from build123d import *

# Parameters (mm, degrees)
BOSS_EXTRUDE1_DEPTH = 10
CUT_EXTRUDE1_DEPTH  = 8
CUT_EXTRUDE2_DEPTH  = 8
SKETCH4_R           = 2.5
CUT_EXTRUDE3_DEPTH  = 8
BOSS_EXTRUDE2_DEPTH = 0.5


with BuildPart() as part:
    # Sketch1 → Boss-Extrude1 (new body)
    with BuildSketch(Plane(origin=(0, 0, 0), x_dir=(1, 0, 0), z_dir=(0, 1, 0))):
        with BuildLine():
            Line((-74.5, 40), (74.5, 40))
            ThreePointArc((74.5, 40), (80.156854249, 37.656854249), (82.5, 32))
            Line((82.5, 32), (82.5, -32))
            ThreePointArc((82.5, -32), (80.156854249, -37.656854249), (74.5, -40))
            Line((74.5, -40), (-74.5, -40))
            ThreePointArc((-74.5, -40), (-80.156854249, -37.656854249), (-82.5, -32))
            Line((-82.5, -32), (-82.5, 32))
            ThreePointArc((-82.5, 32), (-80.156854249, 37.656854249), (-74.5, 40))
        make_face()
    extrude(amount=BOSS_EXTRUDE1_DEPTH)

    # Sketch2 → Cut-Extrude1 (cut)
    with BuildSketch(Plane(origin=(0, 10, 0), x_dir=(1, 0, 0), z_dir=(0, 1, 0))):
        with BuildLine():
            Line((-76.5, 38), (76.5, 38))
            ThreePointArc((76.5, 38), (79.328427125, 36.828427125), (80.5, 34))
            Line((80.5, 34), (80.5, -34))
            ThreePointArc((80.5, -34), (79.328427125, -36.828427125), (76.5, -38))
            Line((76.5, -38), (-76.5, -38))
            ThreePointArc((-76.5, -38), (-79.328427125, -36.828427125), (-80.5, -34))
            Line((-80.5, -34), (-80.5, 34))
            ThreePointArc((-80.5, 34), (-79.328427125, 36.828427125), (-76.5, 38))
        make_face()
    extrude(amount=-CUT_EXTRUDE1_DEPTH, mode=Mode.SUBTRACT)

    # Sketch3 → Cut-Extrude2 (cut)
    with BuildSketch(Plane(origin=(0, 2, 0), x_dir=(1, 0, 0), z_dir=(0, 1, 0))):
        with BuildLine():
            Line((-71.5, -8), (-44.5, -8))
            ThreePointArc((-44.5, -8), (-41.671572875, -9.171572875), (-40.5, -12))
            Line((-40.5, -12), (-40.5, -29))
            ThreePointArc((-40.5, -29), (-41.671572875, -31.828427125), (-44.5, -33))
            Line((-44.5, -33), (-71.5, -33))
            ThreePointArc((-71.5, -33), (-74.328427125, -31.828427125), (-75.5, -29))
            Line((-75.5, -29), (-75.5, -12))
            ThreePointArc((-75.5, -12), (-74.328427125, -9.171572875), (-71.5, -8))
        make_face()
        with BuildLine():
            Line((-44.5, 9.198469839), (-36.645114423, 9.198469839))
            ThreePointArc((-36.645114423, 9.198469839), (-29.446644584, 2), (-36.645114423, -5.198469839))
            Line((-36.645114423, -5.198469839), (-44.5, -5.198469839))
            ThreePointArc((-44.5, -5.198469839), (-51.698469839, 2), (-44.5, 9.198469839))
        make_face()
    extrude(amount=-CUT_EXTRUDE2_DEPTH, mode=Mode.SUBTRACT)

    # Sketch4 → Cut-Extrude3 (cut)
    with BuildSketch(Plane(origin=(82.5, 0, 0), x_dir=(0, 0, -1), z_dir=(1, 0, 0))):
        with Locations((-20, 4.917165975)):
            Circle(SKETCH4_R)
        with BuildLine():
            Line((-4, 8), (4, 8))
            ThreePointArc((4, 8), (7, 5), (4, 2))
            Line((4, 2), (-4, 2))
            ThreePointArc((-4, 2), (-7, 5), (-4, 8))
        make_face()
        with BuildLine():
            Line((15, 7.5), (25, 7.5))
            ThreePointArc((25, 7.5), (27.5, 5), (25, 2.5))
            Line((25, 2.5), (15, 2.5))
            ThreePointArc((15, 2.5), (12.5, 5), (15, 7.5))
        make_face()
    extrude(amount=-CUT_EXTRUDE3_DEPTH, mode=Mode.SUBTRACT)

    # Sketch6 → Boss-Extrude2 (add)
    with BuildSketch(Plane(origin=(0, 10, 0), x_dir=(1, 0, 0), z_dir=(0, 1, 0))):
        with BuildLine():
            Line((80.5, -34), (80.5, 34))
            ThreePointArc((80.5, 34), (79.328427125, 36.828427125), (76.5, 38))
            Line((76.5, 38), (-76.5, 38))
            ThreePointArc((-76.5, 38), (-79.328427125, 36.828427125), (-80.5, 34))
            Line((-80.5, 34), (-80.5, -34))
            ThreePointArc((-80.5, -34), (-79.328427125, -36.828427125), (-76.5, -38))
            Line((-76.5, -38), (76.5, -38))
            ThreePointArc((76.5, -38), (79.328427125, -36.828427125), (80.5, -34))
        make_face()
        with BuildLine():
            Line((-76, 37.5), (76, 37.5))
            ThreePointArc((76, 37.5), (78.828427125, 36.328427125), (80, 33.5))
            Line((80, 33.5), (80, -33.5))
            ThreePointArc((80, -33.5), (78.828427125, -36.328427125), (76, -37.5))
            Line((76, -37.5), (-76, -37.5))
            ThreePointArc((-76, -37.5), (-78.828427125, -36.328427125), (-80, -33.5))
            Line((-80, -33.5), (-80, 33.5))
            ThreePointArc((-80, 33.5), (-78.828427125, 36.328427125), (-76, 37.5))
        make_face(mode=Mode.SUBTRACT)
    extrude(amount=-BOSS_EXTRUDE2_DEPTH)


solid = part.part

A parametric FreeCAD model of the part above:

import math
import FreeCAD as App
import Part
import Sketcher
from FreeCAD import Vector

doc = App.newDocument("Part")
body = doc.addObject("PartDesign::Body", "Body")

# Sketch on XZ plane
sketch1 = body.newObject("Sketcher::SketchObject", "Sketch")
sketch1.AttachmentSupport = (doc.getObject("XZ_Plane"), [""])
sketch1.MapMode = "FlatFace"
sketch1.addGeometry(Part.LineSegment(Vector(74.5, -40, 0), Vector(-74.5, -40, 0)), False)
sketch1.addGeometry(Part.ArcOfCircle(Part.Circle(Vector(-74.5, -32, 0), Vector(0, 0, 1), 8), math.radians(-180), math.radians(-90)), False)
sketch1.addGeometry(Part.LineSegment(Vector(-82.5, -32, 0), Vector(-82.5, 32, 0)), False)
sketch1.addGeometry(Part.ArcOfCircle(Part.Circle(Vector(-74.5, 32, 0), Vector(0, 0, 1), 8), math.radians(90), math.radians(180)), False)
sketch1.addGeometry(Part.LineSegment(Vector(-74.5, 40, 0), Vector(74.5, 40, 0)), False)
sketch1.addGeometry(Part.ArcOfCircle(Part.Circle(Vector(74.5, 32, 0), Vector(0, 0, 1), 8), math.radians(0), math.radians(90)), False)
sketch1.addGeometry(Part.LineSegment(Vector(82.5, 32, 0), Vector(82.5, -32, 0)), False)
sketch1.addGeometry(Part.ArcOfCircle(Part.Circle(Vector(74.5, -32, 0), Vector(0, 0, 1), 8), math.radians(-90), math.radians(0)), False)
sketch1.addConstraint(Sketcher.Constraint("Tangent", 0, 2, 1, 2))
sketch1.addConstraint(Sketcher.Constraint("Tangent", 1, 1, 2, 1))
sketch1.addConstraint(Sketcher.Constraint("Tangent", 2, 2, 3, 2))
sketch1.addConstraint(Sketcher.Constraint("Tangent", 3, 1, 4, 1))
sketch1.addConstraint(Sketcher.Constraint("Tangent", 4, 2, 5, 2))
sketch1.addConstraint(Sketcher.Constraint("Tangent", 5, 1, 6, 1))
sketch1.addConstraint(Sketcher.Constraint("Tangent", 6, 2, 7, 2))
sketch1.addConstraint(Sketcher.Constraint("Tangent", 7, 1, 0, 1))
sketch1.addConstraint(Sketcher.Constraint("Horizontal", 0))
sketch1.addConstraint(Sketcher.Constraint("Vertical", 2))
sketch1.addConstraint(Sketcher.Constraint("Horizontal", 4))
sketch1.addConstraint(Sketcher.Constraint("Vertical", 6))
sketch1.addConstraint(Sketcher.Constraint("Equal", 1, 3))
sketch1.addConstraint(Sketcher.Constraint("Equal", 3, 5))
sketch1.addConstraint(Sketcher.Constraint("Equal", 5, 7))
sketch1.addConstraint(Sketcher.Constraint("Symmetric", 1, 3, 5, 3, -1, 1))
sketch1.addConstraint(Sketcher.Constraint("Radius", 1, 8.0))
sketch1.addConstraint(Sketcher.Constraint("DistanceX", 0, 2, 0, 1, 149.0))
sketch1.addConstraint(Sketcher.Constraint("DistanceY", 2, 1, 2, 2, 64.0))
pad1 = body.newObject("PartDesign::Pad", "Pad")
pad1.Profile = sketch1
pad1.Length = 10
pad1.Reversed = True

# Sketch on XZ plane
sketch2 = body.newObject("Sketcher::SketchObject", "Sketch001")
sketch2.AttachmentSupport = (doc.getObject("XZ_Plane"), [""])
sketch2.MapMode = "FlatFace"
sketch2.AttachmentOffset = App.Placement(Vector(0, 0, -10), App.Rotation())
sketch2.addGeometry(Part.LineSegment(Vector(76.5, -38, 0), Vector(-76.5, -38, 0)), False)
sketch2.addGeometry(Part.ArcOfCircle(Part.Circle(Vector(-76.5, -34, 0), Vector(0, 0, 1), 4), math.radians(180), math.radians(270)), False)
sketch2.addGeometry(Part.LineSegment(Vector(-80.5, -34, 0), Vector(-80.5, 34, 0)), False)
sketch2.addGeometry(Part.ArcOfCircle(Part.Circle(Vector(-76.5, 34, 0), Vector(0, 0, 1), 4), math.radians(90), math.radians(180)), False)
sketch2.addGeometry(Part.LineSegment(Vector(-76.5, 38, 0), Vector(76.5, 38, 0)), False)
sketch2.addGeometry(Part.ArcOfCircle(Part.Circle(Vector(76.5, 34, 0), Vector(0, 0, 1), 4), math.radians(0), math.radians(90)), False)
sketch2.addGeometry(Part.LineSegment(Vector(80.5, 34, 0), Vector(80.5, -34, 0)), False)
sketch2.addGeometry(Part.ArcOfCircle(Part.Circle(Vector(76.5, -34, 0), Vector(0, 0, 1), 4), math.radians(-90), math.radians(0)), False)
sketch2.addConstraint(Sketcher.Constraint("Tangent", 0, 2, 1, 2))
sketch2.addConstraint(Sketcher.Constraint("Tangent", 1, 1, 2, 1))
sketch2.addConstraint(Sketcher.Constraint("Tangent", 2, 2, 3, 2))
sketch2.addConstraint(Sketcher.Constraint("Tangent", 3, 1, 4, 1))
sketch2.addConstraint(Sketcher.Constraint("Tangent", 4, 2, 5, 2))
sketch2.addConstraint(Sketcher.Constraint("Tangent", 5, 1, 6, 1))
sketch2.addConstraint(Sketcher.Constraint("Tangent", 6, 2, 7, 2))
sketch2.addConstraint(Sketcher.Constraint("Tangent", 7, 1, 0, 1))
sketch2.addConstraint(Sketcher.Constraint("Horizontal", 0))
sketch2.addConstraint(Sketcher.Constraint("Vertical", 2))
sketch2.addConstraint(Sketcher.Constraint("Horizontal", 4))
sketch2.addConstraint(Sketcher.Constraint("Vertical", 6))
sketch2.addConstraint(Sketcher.Constraint("Equal", 1, 3))
sketch2.addConstraint(Sketcher.Constraint("Equal", 3, 5))
sketch2.addConstraint(Sketcher.Constraint("Equal", 5, 7))
sketch2.addConstraint(Sketcher.Constraint("Symmetric", 1, 3, 5, 3, -1, 1))
sketch2.addConstraint(Sketcher.Constraint("Radius", 1, 4.0))
sketch2.addConstraint(Sketcher.Constraint("DistanceX", 0, 2, 0, 1, 153.0))
sketch2.addConstraint(Sketcher.Constraint("DistanceY", 2, 1, 2, 2, 68.0))
pocket1 = body.newObject("PartDesign::Pocket", "Pocket")
pocket1.Profile = sketch2
pocket1.Length = 8
pocket1.Reversed = True

# Sketch on XZ plane
sketch3 = body.newObject("Sketcher::SketchObject", "Sketch002")
sketch3.AttachmentSupport = (doc.getObject("XZ_Plane"), [""])
sketch3.MapMode = "FlatFace"
sketch3.AttachmentOffset = App.Placement(Vector(0, 0, -2), App.Rotation())
sketch3.addGeometry(Part.LineSegment(Vector(-44.5, 8, 0), Vector(-71.5, 8, 0)), False)
sketch3.addGeometry(Part.ArcOfCircle(Part.Circle(Vector(-71.5, 12, 0), Vector(0, 0, 1), 4), math.radians(180), math.radians(270)), False)
sketch3.addGeometry(Part.LineSegment(Vector(-75.5, 12, 0), Vector(-75.5, 29, 0)), False)
sketch3.addGeometry(Part.ArcOfCircle(Part.Circle(Vector(-71.5, 29, 0), Vector(0, 0, 1), 4), math.radians(90), math.radians(180)), False)
sketch3.addGeometry(Part.LineSegment(Vector(-71.5, 33, 0), Vector(-44.5, 33, 0)), False)
sketch3.addGeometry(Part.ArcOfCircle(Part.Circle(Vector(-44.5, 29, 0), Vector(0, 0, 1), 4), math.radians(0), math.radians(90)), False)
sketch3.addGeometry(Part.LineSegment(Vector(-40.5, 29, 0), Vector(-40.5, 12, 0)), False)
sketch3.addGeometry(Part.ArcOfCircle(Part.Circle(Vector(-44.5, 12, 0), Vector(0, 0, 1), 4), math.radians(-90), math.radians(0)), False)
sketch3.addGeometry(Part.LineSegment(Vector(-36.645114, -9.19847, 0), Vector(-44.5, -9.19847, 0)), False)
sketch3.addGeometry(Part.ArcOfCircle(Part.Circle(Vector(-44.5, -2, 0), Vector(0, 0, 1), 7.19847), math.radians(90), math.radians(270)), False)
sketch3.addGeometry(Part.LineSegment(Vector(-44.5, 5.19847, 0), Vector(-36.645114, 5.19847, 0)), False)
sketch3.addGeometry(Part.ArcOfCircle(Part.Circle(Vector(-36.645114, -2, 0), Vector(0, 0, 1), 7.19847), math.radians(-90), math.radians(90)), False)
sketch3.addConstraint(Sketcher.Constraint("Tangent", 0, 2, 1, 2))
sketch3.addConstraint(Sketcher.Constraint("Tangent", 1, 1, 2, 1))
sketch3.addConstraint(Sketcher.Constraint("Tangent", 2, 2, 3, 2))
sketch3.addConstraint(Sketcher.Constraint("Tangent", 3, 1, 4, 1))
sketch3.addConstraint(Sketcher.Constraint("Tangent", 4, 2, 5, 2))
sketch3.addConstraint(Sketcher.Constraint("Tangent", 5, 1, 6, 1))
sketch3.addConstraint(Sketcher.Constraint("Tangent", 6, 2, 7, 2))
sketch3.addConstraint(Sketcher.Constraint("Tangent", 7, 1, 0, 1))
sketch3.addConstraint(Sketcher.Constraint("Tangent", 8, 2, 9, 2))
sketch3.addConstraint(Sketcher.Constraint("Tangent", 9, 1, 10, 1))
sketch3.addConstraint(Sketcher.Constraint("Tangent", 10, 2, 11, 2))
sketch3.addConstraint(Sketcher.Constraint("Tangent", 11, 1, 8, 1))
sketch3.addConstraint(Sketcher.Constraint("Horizontal", 0))
sketch3.addConstraint(Sketcher.Constraint("Vertical", 2))
sketch3.addConstraint(Sketcher.Constraint("Horizontal", 4))
sketch3.addConstraint(Sketcher.Constraint("Vertical", 6))
sketch3.addConstraint(Sketcher.Constraint("Horizontal", 8))
sketch3.addConstraint(Sketcher.Constraint("Horizontal", 10))
sketch3.addConstraint(Sketcher.Constraint("Equal", 1, 3))
sketch3.addConstraint(Sketcher.Constraint("Equal", 3, 5))
sketch3.addConstraint(Sketcher.Constraint("Equal", 5, 7))
sketch3.addConstraint(Sketcher.Constraint("Vertical", 7, 3, 9, 3))
sketch3.addConstraint(Sketcher.Constraint("Radius", 1, 4.0))
sketch3.addConstraint(Sketcher.Constraint("DistanceX", 0, 2, 0, 1, 27.0))
sketch3.addConstraint(Sketcher.Constraint("DistanceY", 2, 1, 2, 2, 17.0))
sketch3.addConstraint(Sketcher.Constraint("DistanceY", -1, 1, 1, 3, 12.0))
sketch3.addConstraint(Sketcher.Constraint("DistanceY", 9, 3, -1, 1, 2.0))
sketch3.addConstraint(Sketcher.Constraint("DistanceX", 1, 3, -1, 1, 71.5))
sketch3.addConstraint(Sketcher.Constraint("Radius", 9, 7.19847))
sketch3.addConstraint(Sketcher.Constraint("DistanceX", 8, 2, 8, 1, 7.854886))
pocket2 = body.newObject("PartDesign::Pocket", "Pocket001")
pocket2.Profile = sketch3
pocket2.Length = 8
pocket2.Reversed = True

# Sketch on YZ plane
sketch4 = body.newObject("Sketcher::SketchObject", "Sketch003")
sketch4.AttachmentSupport = (doc.getObject("YZ_Plane"), [""])
sketch4.MapMode = "FlatFace"
sketch4.AttachmentOffset = App.Placement(Vector(0, 0, 82.5), App.Rotation())
sketch4.addGeometry(Part.Circle(Vector(4.917166, 20, 0), Vector(0, 0, 1), 2.5), False)
sketch4.addGeometry(Part.LineSegment(Vector(8, -4, 0), Vector(8, 4, 0)), False)
sketch4.addGeometry(Part.ArcOfCircle(Part.Circle(Vector(5, 4, 0), Vector(0, 0, 1), 3), math.radians(0), math.radians(180)), False)
sketch4.addGeometry(Part.LineSegment(Vector(2, 4, 0), Vector(2, -4, 0)), False)
sketch4.addGeometry(Part.ArcOfCircle(Part.Circle(Vector(5, -4, 0), Vector(0, 0, 1), 3), math.radians(180), math.radians(360)), False)
sketch4.addGeometry(Part.LineSegment(Vector(7.5, -25, 0), Vector(7.5, -15, 0)), False)
sketch4.addGeometry(Part.ArcOfCircle(Part.Circle(Vector(5, -15, 0), Vector(0, 0, 1), 2.5), math.radians(0), math.radians(180)), False)
sketch4.addGeometry(Part.LineSegment(Vector(2.5, -15, 0), Vector(2.5, -25, 0)), False)
sketch4.addGeometry(Part.ArcOfCircle(Part.Circle(Vector(5, -25, 0), Vector(0, 0, 1), 2.5), math.radians(180), math.radians(360)), False)
sketch4.addConstraint(Sketcher.Constraint("Tangent", 1, 2, 2, 1))
sketch4.addConstraint(Sketcher.Constraint("Tangent", 2, 2, 3, 1))
sketch4.addConstraint(Sketcher.Constraint("Tangent", 3, 2, 4, 1))
sketch4.addConstraint(Sketcher.Constraint("Tangent", 4, 2, 1, 1))
sketch4.addConstraint(Sketcher.Constraint("Tangent", 5, 2, 6, 1))
sketch4.addConstraint(Sketcher.Constraint("Tangent", 6, 2, 7, 1))
sketch4.addConstraint(Sketcher.Constraint("Tangent", 7, 2, 8, 1))
sketch4.addConstraint(Sketcher.Constraint("Tangent", 8, 2, 5, 1))
sketch4.addConstraint(Sketcher.Constraint("Vertical", 1))
sketch4.addConstraint(Sketcher.Constraint("Vertical", 3))
sketch4.addConstraint(Sketcher.Constraint("Vertical", 5))
sketch4.addConstraint(Sketcher.Constraint("Vertical", 7))
sketch4.addConstraint(Sketcher.Constraint("Equal", 0, 6))
sketch4.addConstraint(Sketcher.Constraint("Vertical", 4, 3, 6, 3))
sketch4.addConstraint(Sketcher.Constraint("Diameter", 0, 5.0))
sketch4.addConstraint(Sketcher.Constraint("Radius", 2, 3.0))
sketch4.addConstraint(Sketcher.Constraint("DistanceY", 1, 1, 1, 2, 8.0))
sketch4.addConstraint(Sketcher.Constraint("DistanceY", 5, 1, 5, 2, 10.0))
sketch4.addConstraint(Sketcher.Constraint("DistanceY", -1, 1, 0, 3, 20.0))
sketch4.addConstraint(Sketcher.Constraint("DistanceX", -1, 1, 2, 3, 5.0))
sketch4.addConstraint(Sketcher.Constraint("DistanceY", -1, 1, 2, 3, 4.0))
sketch4.addConstraint(Sketcher.Constraint("DistanceY", 6, 3, -1, 1, 15.0))
sketch4.addConstraint(Sketcher.Constraint("DistanceX", -1, 1, 0, 3, 4.917166))
pocket3 = body.newObject("PartDesign::Pocket", "Pocket002")
pocket3.Profile = sketch4
pocket3.Length = 8

# Sketch on XZ plane
sketch5 = body.newObject("Sketcher::SketchObject", "Sketch004")
sketch5.AttachmentSupport = (doc.getObject("XZ_Plane"), [""])
sketch5.MapMode = "FlatFace"
sketch5.AttachmentOffset = App.Placement(Vector(0, 0, -10), App.Rotation())
sketch5.addGeometry(Part.LineSegment(Vector(80.5, 34, 0), Vector(80.5, -34, 0)), False)
sketch5.addGeometry(Part.ArcOfCircle(Part.Circle(Vector(76.5, -34, 0), Vector(0, 0, 1), 4), math.radians(-90), math.radians(0)), False)
sketch5.addGeometry(Part.LineSegment(Vector(76.5, -38, 0), Vector(-76.5, -38, 0)), False)
sketch5.addGeometry(Part.ArcOfCircle(Part.Circle(Vector(-76.5, -34, 0), Vector(0, 0, 1), 4), math.radians(180), math.radians(270)), False)
sketch5.addGeometry(Part.LineSegment(Vector(-80.5, -34, 0), Vector(-80.5, 34, 0)), False)
sketch5.addGeometry(Part.ArcOfCircle(Part.Circle(Vector(-76.5, 34, 0), Vector(0, 0, 1), 4), math.radians(90), math.radians(180)), False)
sketch5.addGeometry(Part.LineSegment(Vector(-76.5, 38, 0), Vector(76.5, 38, 0)), False)
sketch5.addGeometry(Part.ArcOfCircle(Part.Circle(Vector(76.5, 34, 0), Vector(0, 0, 1), 4), math.radians(0), math.radians(90)), False)
sketch5.addGeometry(Part.ArcOfCircle(Part.Circle(Vector(-76, -33.5, 0), Vector(0, 0, 1), 4), math.radians(180), math.radians(270)), False)
sketch5.addGeometry(Part.LineSegment(Vector(-76, -37.5, 0), Vector(76, -37.5, 0)), False)
sketch5.addGeometry(Part.ArcOfCircle(Part.Circle(Vector(76, -33.5, 0), Vector(0, 0, 1), 4), math.radians(-90), math.radians(0)), False)
sketch5.addGeometry(Part.LineSegment(Vector(80, -33.5, 0), Vector(80, 33.5, 0)), False)
sketch5.addGeometry(Part.ArcOfCircle(Part.Circle(Vector(76, 33.5, 0), Vector(0, 0, 1), 4), math.radians(0), math.radians(90)), False)
sketch5.addGeometry(Part.LineSegment(Vector(76, 37.5, 0), Vector(-76, 37.5, 0)), False)
sketch5.addGeometry(Part.ArcOfCircle(Part.Circle(Vector(-76, 33.5, 0), Vector(0, 0, 1), 4), math.radians(90), math.radians(180)), False)
sketch5.addGeometry(Part.LineSegment(Vector(-80, 33.5, 0), Vector(-80, -33.5, 0)), False)
sketch5.addConstraint(Sketcher.Constraint("Tangent", 0, 2, 1, 2))
sketch5.addConstraint(Sketcher.Constraint("Tangent", 1, 1, 2, 1))
sketch5.addConstraint(Sketcher.Constraint("Tangent", 2, 2, 3, 2))
sketch5.addConstraint(Sketcher.Constraint("Tangent", 3, 1, 4, 1))
sketch5.addConstraint(Sketcher.Constraint("Tangent", 4, 2, 5, 2))
sketch5.addConstraint(Sketcher.Constraint("Tangent", 5, 1, 6, 1))
sketch5.addConstraint(Sketcher.Constraint("Tangent", 6, 2, 7, 2))
sketch5.addConstraint(Sketcher.Constraint("Tangent", 7, 1, 0, 1))
sketch5.addConstraint(Sketcher.Constraint("Tangent", 8, 2, 9, 1))
sketch5.addConstraint(Sketcher.Constraint("Tangent", 9, 2, 10, 1))
sketch5.addConstraint(Sketcher.Constraint("Tangent", 10, 2, 11, 1))
sketch5.addConstraint(Sketcher.Constraint("Tangent", 11, 2, 12, 1))
sketch5.addConstraint(Sketcher.Constraint("Tangent", 12, 2, 13, 1))
sketch5.addConstraint(Sketcher.Constraint("Tangent", 13, 2, 14, 1))
sketch5.addConstraint(Sketcher.Constraint("Tangent", 14, 2, 15, 1))
sketch5.addConstraint(Sketcher.Constraint("Tangent", 15, 2, 8, 1))
sketch5.addConstraint(Sketcher.Constraint("Vertical", 0))
sketch5.addConstraint(Sketcher.Constraint("Horizontal", 2))
sketch5.addConstraint(Sketcher.Constraint("Vertical", 4))
sketch5.addConstraint(Sketcher.Constraint("Horizontal", 6))
sketch5.addConstraint(Sketcher.Constraint("Horizontal", 9))
sketch5.addConstraint(Sketcher.Constraint("Vertical", 11))
sketch5.addConstraint(Sketcher.Constraint("Horizontal", 13))
sketch5.addConstraint(Sketcher.Constraint("Vertical", 15))
sketch5.addConstraint(Sketcher.Constraint("Equal", 1, 3))
sketch5.addConstraint(Sketcher.Constraint("Equal", 3, 5))
sketch5.addConstraint(Sketcher.Constraint("Equal", 5, 7))
sketch5.addConstraint(Sketcher.Constraint("Equal", 7, 8))
sketch5.addConstraint(Sketcher.Constraint("Equal", 8, 10))
sketch5.addConstraint(Sketcher.Constraint("Equal", 10, 12))
sketch5.addConstraint(Sketcher.Constraint("Equal", 12, 14))
sketch5.addConstraint(Sketcher.Constraint("Symmetric", 1, 3, 5, 3, -1, 1))
sketch5.addConstraint(Sketcher.Constraint("Symmetric", 8, 3, 12, 3, -1, 1))
sketch5.addConstraint(Sketcher.Constraint("Radius", 1, 4.0))
sketch5.addConstraint(Sketcher.Constraint("DistanceX", 2, 2, 2, 1, 153.0))
sketch5.addConstraint(Sketcher.Constraint("DistanceX", 9, 1, 9, 2, 152.0))
sketch5.addConstraint(Sketcher.Constraint("DistanceY", 0, 2, 0, 1, 68.0))
sketch5.addConstraint(Sketcher.Constraint("DistanceY", 11, 1, 11, 2, 67.0))
pad2 = body.newObject("PartDesign::Pad", "Pad001")
pad2.Profile = sketch5
pad2.Length = 0.5

doc.recompute()
